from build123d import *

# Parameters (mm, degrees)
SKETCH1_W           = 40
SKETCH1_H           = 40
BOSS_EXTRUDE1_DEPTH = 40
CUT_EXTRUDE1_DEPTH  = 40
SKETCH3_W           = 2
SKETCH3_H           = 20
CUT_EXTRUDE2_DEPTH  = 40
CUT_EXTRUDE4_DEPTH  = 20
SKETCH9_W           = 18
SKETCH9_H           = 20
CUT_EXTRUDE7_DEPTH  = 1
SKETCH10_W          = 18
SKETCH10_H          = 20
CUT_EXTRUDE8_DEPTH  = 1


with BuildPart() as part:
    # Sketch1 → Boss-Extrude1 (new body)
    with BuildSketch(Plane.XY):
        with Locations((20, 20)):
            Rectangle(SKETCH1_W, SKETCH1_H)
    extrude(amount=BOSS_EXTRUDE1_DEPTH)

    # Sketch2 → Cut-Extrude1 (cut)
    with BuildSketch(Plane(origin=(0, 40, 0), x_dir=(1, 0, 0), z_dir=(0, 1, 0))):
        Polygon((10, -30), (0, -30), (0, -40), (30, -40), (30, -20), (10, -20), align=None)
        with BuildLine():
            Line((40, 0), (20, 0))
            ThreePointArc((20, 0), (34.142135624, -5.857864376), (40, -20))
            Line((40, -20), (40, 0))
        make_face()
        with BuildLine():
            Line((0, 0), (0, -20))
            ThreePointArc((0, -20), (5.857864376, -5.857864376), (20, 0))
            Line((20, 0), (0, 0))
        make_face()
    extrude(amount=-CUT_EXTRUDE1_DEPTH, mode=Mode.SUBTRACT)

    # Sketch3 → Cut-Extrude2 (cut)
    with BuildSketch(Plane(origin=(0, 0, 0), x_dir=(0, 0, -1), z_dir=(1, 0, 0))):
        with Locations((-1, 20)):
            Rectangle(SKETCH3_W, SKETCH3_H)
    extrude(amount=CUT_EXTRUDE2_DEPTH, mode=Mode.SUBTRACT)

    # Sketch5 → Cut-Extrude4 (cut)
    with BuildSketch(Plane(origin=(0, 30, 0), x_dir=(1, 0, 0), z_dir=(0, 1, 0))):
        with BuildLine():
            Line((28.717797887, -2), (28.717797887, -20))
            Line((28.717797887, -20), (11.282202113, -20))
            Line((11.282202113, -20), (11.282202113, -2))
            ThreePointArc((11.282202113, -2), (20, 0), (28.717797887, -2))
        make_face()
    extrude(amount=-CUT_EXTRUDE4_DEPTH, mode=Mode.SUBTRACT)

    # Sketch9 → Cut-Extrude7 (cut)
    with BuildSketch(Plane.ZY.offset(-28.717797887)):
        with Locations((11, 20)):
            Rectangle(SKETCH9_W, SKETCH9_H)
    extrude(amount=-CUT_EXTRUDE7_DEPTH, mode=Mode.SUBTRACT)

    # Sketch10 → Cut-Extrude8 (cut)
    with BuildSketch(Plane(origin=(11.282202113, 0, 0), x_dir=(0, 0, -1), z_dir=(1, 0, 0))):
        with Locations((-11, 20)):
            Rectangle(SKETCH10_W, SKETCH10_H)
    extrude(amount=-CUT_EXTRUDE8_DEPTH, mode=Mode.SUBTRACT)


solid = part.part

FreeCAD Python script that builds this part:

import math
import FreeCAD as App
import Part
import Sketcher
Q = App.Units.Quantity

doc = App.newDocument("Part")
body = doc.addObject("PartDesign::Body", "Body")

# Sketch on XY plane
sketch1 = doc.addObject("Sketcher::SketchObject", "Sketch")
body.addObject(sketch1)
sketch1.AttachmentSupport = (doc.XY_Plane, [""])
sketch1.MapMode = "FlatFace"
sketch1.addGeometry([
    Part.LineSegment(App.Vector(0, 40, 0), App.Vector(0, 0, 0)),
    Part.LineSegment(App.Vector(0, 0, 0), App.Vector(40, 0, 0)),
    Part.LineSegment(App.Vector(40, 0, 0), App.Vector(40, 40, 0)),
    Part.LineSegment(App.Vector(40, 40, 0), App.Vector(0, 40, 0)),
], False)
sketch1.addConstraint([
    Sketcher.Constraint("Coincident", 0, 2, 1, 1),
    Sketcher.Constraint("Coincident", 1, 2, 2, 1),
    Sketcher.Constraint("Coincident", 2, 2, 3, 1),
    Sketcher.Constraint("Coincident", 3, 2, 0, 1),
    Sketcher.Constraint("Vertical", 0),
    Sketcher.Constraint("Horizontal", 1),
    Sketcher.Constraint("Vertical", 2),
    Sketcher.Constraint("Horizontal", 3),
    Sketcher.Constraint("Coincident", 0, 2, -1, 1),
    Sketcher.Constraint("Equal", 3, 0),
    Sketcher.Constraint("DistanceX", 1, 1, 1, 2, Q("40 mm")),
])
pad1 = doc.addObject("PartDesign::Pad", "Pad")
body.addObject(pad1)
pad1.Profile = sketch1
pad1.Length = 40

# Sketch on XZ plane
sketch2 = doc.addObject("Sketcher::SketchObject", "Sketch001")
body.addObject(sketch2)
sketch2.AttachmentSupport = (doc.XZ_Plane, [""])
sketch2.MapMode = "FlatFace"
sketch2.AttachmentOffset = App.Placement(App.Vector(0, 0, -40), App.Rotation())
sketch2.addGeometry([
    Part.LineSegment(App.Vector(10, 30, 0), App.Vector(0, 30, 0)),  # 0
    Part.LineSegment(App.Vector(0, 30, 0), App.Vector(0, 40, 0)),  # 1
    Part.LineSegment(App.Vector(0, 40, 0), App.Vector(30, 40, 0)),  # 2
    Part.LineSegment(App.Vector(30, 40, 0), App.Vector(30, 20, 0)),  # 3
    Part.LineSegment(App.Vector(30, 20, 0), App.Vector(10, 20, 0)),  # 4
    Part.LineSegment(App.Vector(10, 20, 0), App.Vector(10, 30, 0)),  # 5
    Part.LineSegment(App.Vector(40, 0, 0), App.Vector(20, 0, 0)),  # 6
    Part.ArcOfCircle(Part.Circle(App.Vector(20, 20, 0), App.Vector(0, 0, 1), 20), math.radians(-90), math.radians(0)),  # 7
    Part.LineSegment(App.Vector(40, 20, 0), App.Vector(40, 0, 0)),  # 8
    Part.LineSegment(App.Vector(0, 0, 0), App.Vector(0, 20, 0)),  # 9
    Part.ArcOfCircle(Part.Circle(App.Vector(20, 20, 0), App.Vector(0, 0, 1), 20), math.radians(180), math.radians(270)),  # 10
    Part.LineSegment(App.Vector(20, 0, 0), App.Vector(0, 0, 0)),  # 11
], False)
sketch2.addConstraint([
    Sketcher.Constraint("Coincident", 0, 2, 1, 1),
    Sketcher.Constraint("Coincident", 1, 2, 2, 1),
    Sketcher.Constraint("Coincident", 2, 2, 3, 1),
    Sketcher.Constraint("Coincident", 3, 2, 4, 1),
    Sketcher.Constraint("Coincident", 4, 2, 5, 1),
    Sketcher.Constraint("Coincident", 5, 2, 0, 1),
    Sketcher.Constraint("Tangent", 6, 2, 7, 1),
    Sketcher.Constraint("Tangent", 7, 2, 8, 1),
    Sketcher.Constraint("Coincident", 8, 2, 6, 1),
    Sketcher.Constraint("Tangent", 9, 2, 10, 1),
    Sketcher.Constraint("Tangent", 10, 2, 11, 1),
    Sketcher.Constraint("Coincident", 11, 2, 9, 1),
    Sketcher.Constraint("Horizontal", 0),
    Sketcher.Constraint("Vertical", 1),
    Sketcher.Constraint("Horizontal", 2),
    Sketcher.Constraint("Vertical", 3),
    Sketcher.Constraint("Horizontal", 4),
    Sketcher.Constraint("Vertical", 5),
    Sketcher.Constraint("Horizontal", 6),
    Sketcher.Constraint("Vertical", 8),
    Sketcher.Constraint("Vertical", 9),
    Sketcher.Constraint("Horizontal", 11),
    Sketcher.Constraint("Coincident", 11, 2, -1, 1),
    Sketcher.Constraint("Coincident", 10, 3, 7, 3),
    Sketcher.Constraint("Equal", 7, 10),
    Sketcher.Constraint("PointOnObject", 0, 2, -2),
    Sketcher.Constraint("Horizontal", 10, 3, 3, 2),
    Sketcher.Constraint("Equal", 4, 6),
    Sketcher.Constraint("Equal", 0, 1),
    Sketcher.Constraint("Equal", 11, 3),
    Sketcher.Constraint("Equal", 1, 5),
    Sketcher.Constraint("Radius", 7, Q("20 mm")),
])
pocket1 = doc.addObject("PartDesign::Pocket", "Pocket")
body.addObject(pocket1)
pocket1.Profile = sketch2
pocket1.Length = 40
pocket1.Reversed = True

# Sketch on YZ plane
sketch3 = doc.addObject("Sketcher::SketchObject", "Sketch002")
body.addObject(sketch3)
sketch3.AttachmentSupport = (doc.YZ_Plane, [""])
sketch3.MapMode = "FlatFace"
sketch3.addGeometry([
    Part.LineSegment(App.Vector(30, 2, 0), App.Vector(10, 2, 0)),
    Part.LineSegment(App.Vector(10, 2, 0), App.Vector(10, 0, 0)),
    Part.LineSegment(App.Vector(10, 0, 0), App.Vector(30, 0, 0)),
    Part.LineSegment(App.Vector(30, 0, 0), App.Vector(30, 2, 0)),
], False)
sketch3.addConstraint([
    Sketcher.Constraint("Coincident", 0, 2, 1, 1),
    Sketcher.Constraint("Coincident", 1, 2, 2, 1),
    Sketcher.Constraint("Coincident", 2, 2, 3, 1),
    Sketcher.Constraint("Coincident", 3, 2, 0, 1),
    Sketcher.Constraint("Horizontal", 0),
    Sketcher.Constraint("Vertical", 1),
    Sketcher.Constraint("Horizontal", 2),
    Sketcher.Constraint("Vertical", 3),
    Sketcher.Constraint("PointOnObject", 1, 2, -1),
    Sketcher.Constraint("DistanceX", 0, 2, 0, 1, Q("20 mm")),
    Sketcher.Constraint("DistanceY", 1, 2, 1, 1, Q("2 mm")),
    Sketcher.Constraint("DistanceX", -1, 1, 0, 2, Q("10 mm")),
])
pocket2 = doc.addObject("PartDesign::Pocket", "Pocket001")
body.addObject(pocket2)
pocket2.Profile = sketch3
pocket2.Length = 40
pocket2.Reversed = True

# Sketch on XZ plane
sketch4 = doc.addObject("Sketcher::SketchObject", "Sketch003")
body.addObject(sketch4)
sketch4.AttachmentSupport = (doc.XZ_Plane, [""])
sketch4.MapMode = "FlatFace"
sketch4.AttachmentOffset = App.Placement(App.Vector(0, 0, -30), App.Rotation())
sketch4.addGeometry([
    Part.LineSegment(App.Vector(28.717798, 20, 0), App.Vector(28.717798, 2, 0)),
    Part.ArcOfCircle(Part.Circle(App.Vector(20, 20, 0), App.Vector(0, 0, 1), 20), math.radians(-115.841933), math.radians(-64.158067)),
    Part.LineSegment(App.Vector(11.282202, 2, 0), App.Vector(11.282202, 20, 0)),
    Part.LineSegment(App.Vector(11.282202, 20, 0), App.Vector(28.717798, 20, 0)),
], False)
sketch4.addConstraint([
    Sketcher.Constraint("Coincident", 0, 2, 1, 2),
    Sketcher.Constraint("Coincident", 1, 1, 2, 1),
    Sketcher.Constraint("Coincident", 2, 2, 3, 1),
    Sketcher.Constraint("Coincident", 3, 2, 0, 1),
    Sketcher.Constraint("Vertical", 0),
    Sketcher.Constraint("Vertical", 2),
    Sketcher.Constraint("Horizontal", 3),
    Sketcher.Constraint("Horizontal", 0, 2, 1, 1),
    Sketcher.Constraint("Horizontal", 1, 3, 2, 2),
    Sketcher.Constraint("Radius", 1, Q("20 mm")),
    Sketcher.Constraint("DistanceY", 0, 2, 0, 1, Q("18 mm")),
    Sketcher.Constraint("DistanceX", -1, 1, 1, 3, Q("20 mm")),
    Sketcher.Constraint("DistanceY", -1, 1, 1, 3, Q("20 mm")),
])
pocket3 = doc.addObject("PartDesign::Pocket", "Pocket002")
body.addObject(pocket3)
pocket3.Profile = sketch4
pocket3.Length = 20
pocket3.Reversed = True

# Sketch on YZ plane
sketch5 = doc.addObject("Sketcher::SketchObject", "Sketch004")
body.addObject(sketch5)
sketch5.AttachmentSupport = (doc.YZ_Plane, [""])
sketch5.MapMode = "FlatFace"
sketch5.AttachmentOffset = App.Placement(App.Vector(0, 0, 28.717798), App.Rotation())
sketch5.addGeometry([
    Part.LineSegment(App.Vector(30, 2, 0), App.Vector(10, 2, 0)),
    Part.LineSegment(App.Vector(10, 2, 0), App.Vector(10, 20, 0)),
    Part.LineSegment(App.Vector(10, 20, 0), App.Vector(30, 20, 0)),
    Part.LineSegment(App.Vector(30, 20, 0), App.Vector(30, 2, 0)),
], False)
sketch5.addConstraint([
    Sketcher.Constraint("Coincident", 0, 2, 1, 1),
    Sketcher.Constraint("Coincident", 1, 2, 2, 1),
    Sketcher.Constraint("Coincident", 2, 2, 3, 1),
    Sketcher.Constraint("Coincident", 3, 2, 0, 1),
    Sketcher.Constraint("Horizontal", 0),
    Sketcher.Constraint("Vertical", 1),
    Sketcher.Constraint("Horizontal", 2),
    Sketcher.Constraint("Vertical", 3),
    Sketcher.Constraint("DistanceX", 0, 2, 0, 1, Q("20 mm")),
    Sketcher.Constraint("DistanceY", 1, 1, 1, 2, Q("18 mm")),
    Sketcher.Constraint("DistanceX", -1, 1, 0, 2, Q("10 mm")),
    Sketcher.Constraint("DistanceY", -1, 1, 0, 2, Q("2 mm")),
])
pocket4 = doc.addObject("PartDesign::Pocket", "Pocket003")
body.addObject(pocket4)
pocket4.Profile = sketch5
pocket4.Length = 1
pocket4.Reversed = True

# Sketch on YZ plane
sketch6 = doc.addObject("Sketcher::SketchObject", "Sketch005")
body.addObject(sketch6)
sketch6.AttachmentSupport = (doc.YZ_Plane, [""])
sketch6.MapMode = "FlatFace"
sketch6.AttachmentOffset = App.Placement(App.Vector(0, 0, 11.282202), App.Rotation())
sketch6.addGeometry([
    Part.LineSegment(App.Vector(30, 20, 0), App.Vector(10, 20, 0)),
    Part.LineSegment(App.Vector(10, 20, 0), App.Vector(10, 2, 0)),
    Part.LineSegment(App.Vector(10, 2, 0), App.Vector(30, 2, 0)),
    Part.LineSegment(App.Vector(30, 2, 0), App.Vector(30, 20, 0)),
], False)
sketch6.addConstraint([
    Sketcher.Constraint("Coincident", 0, 2, 1, 1),
    Sketcher.Constraint("Coincident", 1, 2, 2, 1),
    Sketcher.Constraint("Coincident", 2, 2, 3, 1),
    Sketcher.Constraint("Coincident", 3, 2, 0, 1),
    Sketcher.Constraint("Horizontal", 0),
    Sketcher.Constraint("Vertical", 1),
    Sketcher.Constraint("Horizontal", 2),
    Sketcher.Constraint("Vertical", 3),
    Sketcher.Constraint("DistanceX", 0, 2, 0, 1, Q("20 mm")),
    Sketcher.Constraint("DistanceY", 1, 2, 1, 1, Q("18 mm")),
    Sketcher.Constraint("DistanceX", -1, 1, 0, 2, Q("10 mm")),
    Sketcher.Constraint("DistanceY", -1, 1, 0, 2, Q("20 mm")),
])
pocket5 = doc.addObject("PartDesign::Pocket", "Pocket004")
body.addObject(pocket5)
pocket5.Profile = sketch6
pocket5.Length = 1

doc.recompute()
